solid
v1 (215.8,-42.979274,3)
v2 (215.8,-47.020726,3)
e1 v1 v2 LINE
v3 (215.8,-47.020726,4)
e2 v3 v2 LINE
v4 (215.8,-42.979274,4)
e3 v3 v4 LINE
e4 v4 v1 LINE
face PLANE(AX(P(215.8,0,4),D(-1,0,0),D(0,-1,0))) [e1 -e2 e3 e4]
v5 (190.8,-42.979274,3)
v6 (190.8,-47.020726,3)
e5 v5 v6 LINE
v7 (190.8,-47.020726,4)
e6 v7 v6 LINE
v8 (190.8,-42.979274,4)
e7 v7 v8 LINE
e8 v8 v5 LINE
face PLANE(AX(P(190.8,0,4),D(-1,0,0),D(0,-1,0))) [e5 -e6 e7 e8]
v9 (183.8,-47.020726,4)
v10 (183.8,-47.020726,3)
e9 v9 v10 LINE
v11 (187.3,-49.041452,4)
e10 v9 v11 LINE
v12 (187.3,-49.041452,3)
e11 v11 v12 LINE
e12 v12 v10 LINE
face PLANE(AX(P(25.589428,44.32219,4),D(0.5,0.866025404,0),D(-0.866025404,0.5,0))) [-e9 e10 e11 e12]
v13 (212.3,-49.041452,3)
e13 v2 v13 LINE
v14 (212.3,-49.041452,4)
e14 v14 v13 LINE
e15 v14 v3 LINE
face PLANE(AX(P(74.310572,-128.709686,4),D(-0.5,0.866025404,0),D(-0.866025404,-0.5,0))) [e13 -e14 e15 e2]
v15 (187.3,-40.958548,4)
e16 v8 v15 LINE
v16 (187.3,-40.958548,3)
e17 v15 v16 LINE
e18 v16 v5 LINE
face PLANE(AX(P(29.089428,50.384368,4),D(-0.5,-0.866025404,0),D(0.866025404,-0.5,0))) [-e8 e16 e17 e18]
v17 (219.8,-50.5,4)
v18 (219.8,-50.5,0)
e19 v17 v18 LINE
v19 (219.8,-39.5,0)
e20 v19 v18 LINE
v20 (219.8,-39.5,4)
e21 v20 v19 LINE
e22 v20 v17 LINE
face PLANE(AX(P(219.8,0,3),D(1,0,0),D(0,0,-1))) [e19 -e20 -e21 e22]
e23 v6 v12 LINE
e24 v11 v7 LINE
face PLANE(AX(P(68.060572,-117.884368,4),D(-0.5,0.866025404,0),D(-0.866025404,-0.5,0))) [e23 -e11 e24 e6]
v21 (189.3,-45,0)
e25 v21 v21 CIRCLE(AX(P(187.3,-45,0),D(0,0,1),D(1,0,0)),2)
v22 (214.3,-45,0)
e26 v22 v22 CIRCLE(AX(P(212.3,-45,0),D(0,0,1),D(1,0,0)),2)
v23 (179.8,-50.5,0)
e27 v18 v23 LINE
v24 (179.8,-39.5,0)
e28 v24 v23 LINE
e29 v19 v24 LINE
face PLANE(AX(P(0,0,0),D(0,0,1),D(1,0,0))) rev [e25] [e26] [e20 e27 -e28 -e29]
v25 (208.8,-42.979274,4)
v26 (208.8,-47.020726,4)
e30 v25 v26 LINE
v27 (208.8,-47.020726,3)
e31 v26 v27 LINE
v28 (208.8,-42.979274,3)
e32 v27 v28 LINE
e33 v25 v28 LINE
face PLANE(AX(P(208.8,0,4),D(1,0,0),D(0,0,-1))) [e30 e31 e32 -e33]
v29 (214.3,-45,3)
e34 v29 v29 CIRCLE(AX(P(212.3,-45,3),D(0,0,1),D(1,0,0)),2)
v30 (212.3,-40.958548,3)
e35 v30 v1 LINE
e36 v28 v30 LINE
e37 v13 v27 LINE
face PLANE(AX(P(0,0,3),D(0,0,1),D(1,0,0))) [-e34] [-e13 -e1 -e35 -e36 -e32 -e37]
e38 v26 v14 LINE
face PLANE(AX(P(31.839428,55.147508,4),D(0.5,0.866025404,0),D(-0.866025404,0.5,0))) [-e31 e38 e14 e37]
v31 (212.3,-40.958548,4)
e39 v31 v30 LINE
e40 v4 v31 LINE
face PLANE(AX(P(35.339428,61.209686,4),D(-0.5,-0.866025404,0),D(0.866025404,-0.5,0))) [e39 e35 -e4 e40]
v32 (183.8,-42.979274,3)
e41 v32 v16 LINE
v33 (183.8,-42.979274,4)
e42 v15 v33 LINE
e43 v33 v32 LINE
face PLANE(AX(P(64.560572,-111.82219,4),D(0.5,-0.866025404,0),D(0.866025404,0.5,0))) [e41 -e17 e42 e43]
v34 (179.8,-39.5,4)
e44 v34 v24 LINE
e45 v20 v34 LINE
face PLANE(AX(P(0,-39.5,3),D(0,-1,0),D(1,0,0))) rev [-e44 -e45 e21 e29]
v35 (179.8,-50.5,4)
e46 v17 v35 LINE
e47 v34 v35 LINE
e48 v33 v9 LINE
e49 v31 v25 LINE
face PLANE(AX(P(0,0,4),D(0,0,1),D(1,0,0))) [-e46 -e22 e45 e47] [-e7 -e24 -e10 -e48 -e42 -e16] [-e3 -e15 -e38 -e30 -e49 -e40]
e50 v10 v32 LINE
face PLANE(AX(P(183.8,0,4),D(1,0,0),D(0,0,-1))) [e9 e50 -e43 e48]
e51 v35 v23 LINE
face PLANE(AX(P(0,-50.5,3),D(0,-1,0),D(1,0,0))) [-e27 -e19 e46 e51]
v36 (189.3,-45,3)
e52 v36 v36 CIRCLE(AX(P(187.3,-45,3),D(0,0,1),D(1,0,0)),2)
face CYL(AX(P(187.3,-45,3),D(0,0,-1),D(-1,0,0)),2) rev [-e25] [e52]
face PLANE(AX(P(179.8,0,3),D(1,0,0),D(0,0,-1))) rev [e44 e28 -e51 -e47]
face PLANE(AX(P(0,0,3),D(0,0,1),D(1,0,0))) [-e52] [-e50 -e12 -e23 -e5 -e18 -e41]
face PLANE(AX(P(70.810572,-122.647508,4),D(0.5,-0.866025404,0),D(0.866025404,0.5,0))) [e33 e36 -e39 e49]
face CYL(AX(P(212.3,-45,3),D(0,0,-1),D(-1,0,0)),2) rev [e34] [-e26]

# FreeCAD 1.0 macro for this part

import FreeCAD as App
import Part
import Sketcher
from FreeCAD import Vector
Q = App.Units.Quantity


def add_polygon(sketch, points):
    """Adds a closed chain of lines whose ends are joined by coincident constraints."""
    first, n = sketch.GeometryCount, len(points)
    for a, b in zip(points, points[1:] + points[:1]):
        sketch.addGeometry(Part.LineSegment(App.Vector(*a, 0), App.Vector(*b, 0)), False)
    for i in range(n):
        sketch.addConstraint(Sketcher.Constraint("Coincident", first + i, 2, first + (i + 1) % n, 1))

doc = App.newDocument("Part")
body = doc.addObject("PartDesign::Body", "Body")

# Sketch on XY plane
sketch1 = doc.addObject("Sketcher::SketchObject", "Sketch")
body.addObject(sketch1)
sketch1.AttachmentSupport = (doc.XY_Plane, [""])
sketch1.MapMode = "FlatFace"
add_polygon(sketch1, [(179.8, -39.5), (179.8, -50.5), (219.8, -50.5), (219.8, -39.5)])  # lines 0-3
sketch1.addGeometry(Part.Circle(Vector(187.3, -45, 0), Vector(0, 0, 1), 2), False)  # 4
sketch1.addGeometry(Part.Circle(Vector(212.3, -45, 0), Vector(0, 0, 1), 2), False)  # 5
sketch1.addConstraint(Sketcher.Constraint("Vertical", 0))
sketch1.addConstraint(Sketcher.Constraint("Horizontal", 1))
sketch1.addConstraint(Sketcher.Constraint("Vertical", 2))
sketch1.addConstraint(Sketcher.Constraint("Horizontal", 3))
sketch1.addConstraint(Sketcher.Constraint("Equal", 4, 5))
sketch1.addConstraint(Sketcher.Constraint("Horizontal", 4, 3, 5, 3))
sketch1.addConstraint(Sketcher.Constraint("Diameter", 4, Q("4 mm")))
sketch1.addConstraint(Sketcher.Constraint("DistanceX", 1, 1, 1, 2, Q("40 mm")))
sketch1.addConstraint(Sketcher.Constraint("DistanceY", 0, 2, 0, 1, Q("11 mm")))
sketch1.addConstraint(Sketcher.Constraint("DistanceY", 4, 3, -1, 1, Q("45 mm")))
sketch1.addConstraint(Sketcher.Constraint("DistanceX", 4, 3, 5, 3, Q("25 mm")))
sketch1.addConstraint(Sketcher.Constraint("DistanceX", -1, 1, 4, 3, Q("187.3 mm")))
sketch1.addConstraint(Sketcher.Constraint("DistanceX", -1, 1, 0, 2, Q("179.8 mm")))
sketch1.addConstraint(Sketcher.Constraint("DistanceY", 0, 2, -1, 1, Q("50.5 mm")))
pad1 = doc.addObject("PartDesign::Pad", "Pad")
body.addObject(pad1)
pad1.Profile = sketch1
pad1.Length = 3

# Sketch on XY plane
sketch2 = doc.addObject("Sketcher::SketchObject", "Sketch001")
body.addObject(sketch2)
sketch2.AttachmentSupport = (doc.XY_Plane, [""])
sketch2.MapMode = "FlatFace"
add_polygon(sketch2, [(179.8, -39.5), (179.8, -50.5), (219.8, -50.5), (219.8, -39.5)])  # lines 0-3
add_polygon(sketch2, [(187.3, -49.041452), (183.8, -47.020726), (183.8, -42.979274), (187.3, -40.958548), (190.8, -42.979274), (190.8, -47.020726)])  # lines 4-9
add_polygon(sketch2, [(212.3, -49.041452), (208.8, -47.020726), (208.8, -42.979274), (212.3, -40.958548), (215.8, -42.979274), (215.8, -47.020726)])  # lines 10-15
sketch2.addConstraint(Sketcher.Constraint("Vertical", 0))
sketch2.addConstraint(Sketcher.Constraint("Horizontal", 1))
sketch2.addConstraint(Sketcher.Constraint("Vertical", 2))
sketch2.addConstraint(Sketcher.Constraint("Horizontal", 3))
sketch2.addConstraint(Sketcher.Constraint("Vertical", 5))
sketch2.addConstraint(Sketcher.Constraint("Vertical", 8))
sketch2.addConstraint(Sketcher.Constraint("Vertical", 11))
sketch2.addConstraint(Sketcher.Constraint("Vertical", 14))
sketch2.addConstraint(Sketcher.Constraint("Parallel", 4, 7))
sketch2.addConstraint(Sketcher.Constraint("Parallel", 6, 9))
sketch2.addConstraint(Sketcher.Constraint("Parallel", 7, 10))
sketch2.addConstraint(Sketcher.Constraint("Parallel", 9, 12))
sketch2.addConstraint(Sketcher.Constraint("Parallel", 10, 13))
sketch2.addConstraint(Sketcher.Constraint("Parallel", 12, 15))
sketch2.addConstraint(Sketcher.Constraint("Horizontal", 5, 2, 7, 2))
sketch2.addConstraint(Sketcher.Constraint("Horizontal", 4, 2, 8, 2))
sketch2.addConstraint(Sketcher.Constraint("Horizontal", 8, 2, 10, 2))
sketch2.addConstraint(Sketcher.Constraint("Horizontal", 7, 2, 11, 2))
sketch2.addConstraint(Sketcher.Constraint("Horizontal", 6, 2, 12, 2))
sketch2.addConstraint(Sketcher.Constraint("Horizontal", 11, 2, 13, 2))
sketch2.addConstraint(Sketcher.Constraint("Horizontal", 10, 2, 14, 2))
sketch2.addConstraint(Sketcher.Constraint("Vertical", 6, 2, 9, 2))
sketch2.addConstraint(Sketcher.Constraint("DistanceX", 1, 1, 1, 2, Q("40 mm")))
sketch2.addConstraint(Sketcher.Constraint("DistanceY", 0, 2, 0, 1, Q("11 mm")))
sketch2.addConstraint(Sketcher.Constraint("Angle", 4, Q("150 deg")))
sketch2.addConstraint(Sketcher.Constraint("DistanceX", 0, 2, 4, 2, Q("4 mm")))
sketch2.addConstraint(Sketcher.Constraint("DistanceX", 5, 2, 7, 2, Q("7 mm")))
sketch2.addConstraint(Sketcher.Constraint("DistanceX", 10, 2, 1, 2, Q("11 mm")))
sketch2.addConstraint(Sketcher.Constraint("DistanceX", -1, 1, 0, 2, Q("179.8 mm")))
sketch2.addConstraint(Sketcher.Constraint("DistanceY", 0, 2, -1, 1, Q("50.5 mm")))
sketch2.addConstraint(Sketcher.Constraint("DistanceY", 5, 1, 5, 2, Q("4.041452 mm")))
sketch2.addConstraint(Sketcher.Constraint("DistanceY", 6, 2, -1, 1, Q("40.958548 mm")))
pad2 = doc.addObject("PartDesign::Pad", "Pad001")
body.addObject(pad2)
pad2.Profile = sketch2
pad2.Length = 4

doc.recompute()
